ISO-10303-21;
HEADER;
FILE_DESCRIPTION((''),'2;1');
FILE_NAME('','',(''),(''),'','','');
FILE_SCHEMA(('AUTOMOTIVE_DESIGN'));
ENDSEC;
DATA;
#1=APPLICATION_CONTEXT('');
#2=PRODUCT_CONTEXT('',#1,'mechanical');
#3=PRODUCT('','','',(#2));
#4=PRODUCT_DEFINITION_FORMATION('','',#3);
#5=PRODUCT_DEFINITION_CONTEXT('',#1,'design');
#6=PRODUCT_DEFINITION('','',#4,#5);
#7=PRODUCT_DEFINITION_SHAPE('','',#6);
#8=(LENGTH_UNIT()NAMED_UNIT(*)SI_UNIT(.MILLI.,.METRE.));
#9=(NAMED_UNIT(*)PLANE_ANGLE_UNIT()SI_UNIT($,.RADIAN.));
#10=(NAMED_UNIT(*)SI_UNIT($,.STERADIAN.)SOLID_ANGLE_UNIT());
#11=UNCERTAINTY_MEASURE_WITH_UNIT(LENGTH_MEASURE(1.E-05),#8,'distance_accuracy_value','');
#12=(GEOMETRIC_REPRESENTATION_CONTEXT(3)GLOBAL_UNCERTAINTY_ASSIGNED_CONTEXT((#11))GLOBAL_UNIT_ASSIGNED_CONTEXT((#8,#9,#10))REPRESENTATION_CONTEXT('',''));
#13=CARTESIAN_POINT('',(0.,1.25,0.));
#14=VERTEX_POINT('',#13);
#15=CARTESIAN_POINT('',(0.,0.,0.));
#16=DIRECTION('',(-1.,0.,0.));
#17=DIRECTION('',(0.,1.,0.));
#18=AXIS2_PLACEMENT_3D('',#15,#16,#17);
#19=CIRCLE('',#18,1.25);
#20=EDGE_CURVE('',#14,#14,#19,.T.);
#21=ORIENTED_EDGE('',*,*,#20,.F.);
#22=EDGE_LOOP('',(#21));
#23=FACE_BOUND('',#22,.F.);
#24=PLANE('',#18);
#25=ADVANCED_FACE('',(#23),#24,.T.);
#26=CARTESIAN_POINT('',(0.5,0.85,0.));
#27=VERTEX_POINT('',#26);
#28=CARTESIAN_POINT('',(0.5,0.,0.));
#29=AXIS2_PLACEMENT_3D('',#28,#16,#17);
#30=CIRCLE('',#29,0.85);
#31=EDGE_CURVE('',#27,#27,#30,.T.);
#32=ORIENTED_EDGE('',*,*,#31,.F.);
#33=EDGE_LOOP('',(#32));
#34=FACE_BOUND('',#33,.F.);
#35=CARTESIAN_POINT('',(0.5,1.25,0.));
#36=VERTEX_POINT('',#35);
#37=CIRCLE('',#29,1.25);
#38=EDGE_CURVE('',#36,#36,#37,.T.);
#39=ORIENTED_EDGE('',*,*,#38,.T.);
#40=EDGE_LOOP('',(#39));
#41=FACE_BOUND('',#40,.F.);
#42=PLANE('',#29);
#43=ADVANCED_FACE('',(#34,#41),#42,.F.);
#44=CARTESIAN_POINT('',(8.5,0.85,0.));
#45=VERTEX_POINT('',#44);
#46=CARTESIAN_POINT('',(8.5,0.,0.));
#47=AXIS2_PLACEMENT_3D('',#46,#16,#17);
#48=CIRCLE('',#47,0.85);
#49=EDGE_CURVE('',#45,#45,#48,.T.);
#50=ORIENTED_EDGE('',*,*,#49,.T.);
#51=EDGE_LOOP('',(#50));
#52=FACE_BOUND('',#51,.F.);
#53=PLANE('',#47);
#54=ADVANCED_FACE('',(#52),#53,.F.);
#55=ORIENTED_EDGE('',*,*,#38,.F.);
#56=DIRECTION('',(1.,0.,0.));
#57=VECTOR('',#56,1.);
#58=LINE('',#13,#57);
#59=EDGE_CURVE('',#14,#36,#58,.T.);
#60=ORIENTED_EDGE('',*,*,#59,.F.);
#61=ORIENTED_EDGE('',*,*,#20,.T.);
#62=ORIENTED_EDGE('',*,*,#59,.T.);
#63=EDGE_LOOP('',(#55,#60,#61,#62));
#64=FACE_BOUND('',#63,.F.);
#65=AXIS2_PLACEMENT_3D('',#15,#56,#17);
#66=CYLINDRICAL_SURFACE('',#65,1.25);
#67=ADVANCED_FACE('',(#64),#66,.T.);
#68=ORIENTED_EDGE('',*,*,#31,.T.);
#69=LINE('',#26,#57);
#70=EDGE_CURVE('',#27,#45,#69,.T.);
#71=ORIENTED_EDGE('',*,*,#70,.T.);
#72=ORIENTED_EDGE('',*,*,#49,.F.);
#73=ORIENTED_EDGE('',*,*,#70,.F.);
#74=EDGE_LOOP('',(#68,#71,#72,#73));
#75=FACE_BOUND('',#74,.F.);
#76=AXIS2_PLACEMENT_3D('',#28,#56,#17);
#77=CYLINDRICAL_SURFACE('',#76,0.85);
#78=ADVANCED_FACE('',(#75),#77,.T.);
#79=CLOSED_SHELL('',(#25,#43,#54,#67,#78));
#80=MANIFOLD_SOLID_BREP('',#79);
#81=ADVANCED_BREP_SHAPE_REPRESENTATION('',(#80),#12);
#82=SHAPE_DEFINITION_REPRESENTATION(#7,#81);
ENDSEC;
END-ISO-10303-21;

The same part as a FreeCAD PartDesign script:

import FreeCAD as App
import Part
import Sketcher
from FreeCAD import Vector

doc = App.newDocument("Part")
body = doc.addObject("PartDesign::Body", "Body")

# Sketch on XY plane
sketch1 = body.newObject("Sketcher::SketchObject", "Sketch")
sketch1.AttachmentSupport = (doc.getObject("XY_Plane"), [""])
sketch1.MapMode = "FlatFace"
sketch1.addGeometry([
    Part.LineSegment(Vector(0, 1.25, 0), Vector(0, 0, 0)),  # 0
    Part.LineSegment(Vector(0, 0, 0), Vector(8.5, 0, 0)),  # 1
    Part.LineSegment(Vector(8.5, 0, 0), Vector(8.5, 0.85, 0)),  # 2
    Part.LineSegment(Vector(8.5, 0.85, 0), Vector(0.5, 0.85, 0)),  # 3
    Part.LineSegment(Vector(0.5, 0.85, 0), Vector(0.5, 1.25, 0)),  # 4
    Part.LineSegment(Vector(0.5, 1.25, 0), Vector(0, 1.25, 0)),  # 5
], False)
sketch1.addConstraint([
    Sketcher.Constraint("Coincident", 0, 2, 1, 1),
    Sketcher.Constraint("Coincident", 1, 2, 2, 1),
    Sketcher.Constraint("Coincident", 2, 2, 3, 1),
    Sketcher.Constraint("Coincident", 3, 2, 4, 1),
    Sketcher.Constraint("Coincident", 4, 2, 5, 1),
    Sketcher.Constraint("Coincident", 5, 2, 0, 1),
    Sketcher.Constraint("Vertical", 0),
    Sketcher.Constraint("Horizontal", 1),
    Sketcher.Constraint("Vertical", 2),
    Sketcher.Constraint("Horizontal", 3),
    Sketcher.Constraint("Vertical", 4),
    Sketcher.Constraint("Horizontal", 5),
    Sketcher.Constraint("Coincident", 0, 2, -1, 1),
    Sketcher.Constraint("DistanceX", 3, 2, 3, 1, 8.0),
    Sketcher.Constraint("DistanceX", 5, 2, 5, 1, 0.5),
    Sketcher.Constraint("DistanceY", 0, 2, 0, 1, 1.25),
    Sketcher.Constraint("DistanceY", 2, 1, 2, 2, 0.85),
])
revolution = body.newObject("PartDesign::Revolution", "Revolution")
revolution.Profile = sketch1
revolution.ReferenceAxis = (sketch1, ["H_Axis"])
revolution.Angle = 360

doc.recompute()
